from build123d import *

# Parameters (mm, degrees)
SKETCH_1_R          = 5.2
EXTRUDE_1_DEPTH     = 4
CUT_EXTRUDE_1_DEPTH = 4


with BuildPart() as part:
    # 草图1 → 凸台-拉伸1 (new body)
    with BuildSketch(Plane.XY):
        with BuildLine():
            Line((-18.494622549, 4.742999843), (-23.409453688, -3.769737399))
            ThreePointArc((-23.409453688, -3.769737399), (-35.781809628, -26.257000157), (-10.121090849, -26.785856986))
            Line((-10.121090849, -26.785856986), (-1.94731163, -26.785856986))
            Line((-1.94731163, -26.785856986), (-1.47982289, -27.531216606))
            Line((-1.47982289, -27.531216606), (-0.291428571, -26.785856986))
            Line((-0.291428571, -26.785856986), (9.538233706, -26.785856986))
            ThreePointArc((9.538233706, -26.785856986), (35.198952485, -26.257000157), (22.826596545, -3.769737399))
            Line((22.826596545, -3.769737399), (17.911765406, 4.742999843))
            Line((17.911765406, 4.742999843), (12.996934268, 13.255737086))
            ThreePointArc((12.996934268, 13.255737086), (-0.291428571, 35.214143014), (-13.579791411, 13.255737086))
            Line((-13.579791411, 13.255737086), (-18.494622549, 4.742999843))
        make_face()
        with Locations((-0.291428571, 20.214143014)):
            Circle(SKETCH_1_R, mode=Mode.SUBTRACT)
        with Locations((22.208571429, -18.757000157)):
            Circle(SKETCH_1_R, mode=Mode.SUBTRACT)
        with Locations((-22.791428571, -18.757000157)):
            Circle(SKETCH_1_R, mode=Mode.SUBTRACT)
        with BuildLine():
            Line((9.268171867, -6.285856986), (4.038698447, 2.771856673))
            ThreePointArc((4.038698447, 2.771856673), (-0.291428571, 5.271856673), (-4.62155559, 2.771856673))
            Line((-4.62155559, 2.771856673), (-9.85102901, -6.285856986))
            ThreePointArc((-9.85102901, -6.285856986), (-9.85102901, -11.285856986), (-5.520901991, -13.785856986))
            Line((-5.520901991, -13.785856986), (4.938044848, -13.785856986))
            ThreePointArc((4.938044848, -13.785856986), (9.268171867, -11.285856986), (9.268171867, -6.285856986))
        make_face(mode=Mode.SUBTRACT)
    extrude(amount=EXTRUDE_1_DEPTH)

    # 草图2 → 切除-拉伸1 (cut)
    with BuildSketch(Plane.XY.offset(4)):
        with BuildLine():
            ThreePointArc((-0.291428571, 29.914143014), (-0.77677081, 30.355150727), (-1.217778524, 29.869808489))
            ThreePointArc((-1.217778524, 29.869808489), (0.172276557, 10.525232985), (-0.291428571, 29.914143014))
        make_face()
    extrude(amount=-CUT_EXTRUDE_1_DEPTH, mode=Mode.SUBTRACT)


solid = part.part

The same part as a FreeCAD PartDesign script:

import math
import FreeCAD as App
import Part
import Sketcher

V = App.Vector
Q = App.Units.Quantity

doc = App.newDocument("Part")
body = doc.addObject("PartDesign::Body", "Body")

sketch1 = body.newObject("Sketcher::SketchObject", "Sketch")
sketch1.AttachmentSupport = (doc.getObject("XY_Plane"), [""])
sketch1.MapMode = "FlatFace"
sketch1.addGeometry(Part.LineSegment(V(-18.5, 4.7, 0), V(-23.4, -3.8, 0)), False)
sketch1.addGeometry(Part.ArcOfCircle(Part.Circle(V(-22.8, -18.8, 0), V(0, 0, 1), 15), math.radians(92), math.radians(328)), False)
sketch1.addGeometry(Part.LineSegment(V(-10.1, -26.8, 0), V(-1.9, -26.8, 0)), False)
sketch1.addGeometry(Part.LineSegment(V(-1.9, -26.8, 0), V(-1.5, -27.5, 0)), False)
sketch1.addGeometry(Part.LineSegment(V(-1.5, -27.5, 0), V(-0.3, -26.8, 0)), False)
sketch1.addGeometry(Part.LineSegment(V(-0.3, -26.8, 0), V(9.5, -26.8, 0)), False)
sketch1.addGeometry(Part.ArcOfCircle(Part.Circle(V(22.2, -18.8, 0), V(0, 0, 1), 15), math.radians(-148), math.radians(88)), False)
sketch1.addGeometry(Part.LineSegment(V(22.8, -3.8, 0), V(17.9, 4.7, 0)), False)
sketch1.addGeometry(Part.LineSegment(V(17.9, 4.7, 0), V(13, 13.3, 0)), False)
sketch1.addGeometry(Part.ArcOfCircle(Part.Circle(V(-0.3, 20.2, 0), V(0, 0, 1), 15), math.radians(-28), math.radians(208)), False)
sketch1.addGeometry(Part.LineSegment(V(-13.6, 13.3, 0), V(-18.5, 4.7, 0)), False)
sketch1.addGeometry(Part.Circle(V(-22.8, -18.8, 0), V(0, 0, 1), 5.2), False)
sketch1.addGeometry(Part.LineSegment(V(4, 2.8, 0), V(9.3, -6.3, 0)), False)
sketch1.addGeometry(Part.ArcOfCircle(Part.Circle(V(4.9, -8.8, 0), V(0, 0, 1), 5), math.radians(-90), math.radians(30)), False)
sketch1.addGeometry(Part.LineSegment(V(4.9, -13.8, 0), V(-5.5, -13.8, 0)), False)
sketch1.addGeometry(Part.ArcOfCircle(Part.Circle(V(-5.5, -8.8, 0), V(0, 0, 1), 5), math.radians(150), math.radians(270)), False)
sketch1.addGeometry(Part.LineSegment(V(-9.9, -6.3, 0), V(-4.6, 2.8, 0)), False)
sketch1.addGeometry(Part.ArcOfCircle(Part.Circle(V(-0.3, 0.3, 0), V(0, 0, 1), 5), math.radians(30), math.radians(150)), False)
sketch1.addGeometry(Part.Circle(V(22.2, -18.8, 0), V(0, 0, 1), 5.2), False)
sketch1.addGeometry(Part.Circle(V(-0.3, 20.2, 0), V(0, 0, 1), 5.2), False)
sketch1.addConstraint(Sketcher.Constraint("Coincident", 0, 2, 1, 1))
sketch1.addConstraint(Sketcher.Constraint("Coincident", 1, 2, 2, 1))
sketch1.addConstraint(Sketcher.Constraint("Coincident", 2, 2, 3, 1))
sketch1.addConstraint(Sketcher.Constraint("Coincident", 3, 2, 4, 1))
sketch1.addConstraint(Sketcher.Constraint("Coincident", 4, 2, 5, 1))
sketch1.addConstraint(Sketcher.Constraint("Coincident", 5, 2, 6, 1))
sketch1.addConstraint(Sketcher.Constraint("Coincident", 6, 2, 7, 1))
sketch1.addConstraint(Sketcher.Constraint("Coincident", 7, 2, 8, 1))
sketch1.addConstraint(Sketcher.Constraint("Coincident", 8, 2, 9, 1))
sketch1.addConstraint(Sketcher.Constraint("Coincident", 9, 2, 10, 1))
sketch1.addConstraint(Sketcher.Constraint("Coincident", 10, 2, 0, 1))
sketch1.addConstraint(Sketcher.Constraint("Tangent", 12, 2, 13, 2))
sketch1.addConstraint(Sketcher.Constraint("Tangent", 13, 1, 14, 1))
sketch1.addConstraint(Sketcher.Constraint("Tangent", 14, 2, 15, 2))
sketch1.addConstraint(Sketcher.Constraint("Tangent", 15, 1, 16, 1))
sketch1.addConstraint(Sketcher.Constraint("Tangent", 16, 2, 17, 2))
sketch1.addConstraint(Sketcher.Constraint("Tangent", 17, 1, 12, 1))
sketch1.addConstraint(Sketcher.Constraint("Horizontal", 2))
sketch1.addConstraint(Sketcher.Constraint("Horizontal", 5))
sketch1.addConstraint(Sketcher.Constraint("Horizontal", 14))
sketch1.addConstraint(Sketcher.Constraint("Coincident", 11, 3, 1, 3))
sketch1.addConstraint(Sketcher.Constraint("Coincident", 18, 3, 6, 3))
sketch1.addConstraint(Sketcher.Constraint("Coincident", 19, 3, 9, 3))
sketch1.addConstraint(Sketcher.Constraint("Equal", 1, 6))
sketch1.addConstraint(Sketcher.Constraint("Equal", 6, 9))
sketch1.addConstraint(Sketcher.Constraint("Equal", 13, 15))
sketch1.addConstraint(Sketcher.Constraint("Equal", 15, 17))
sketch1.addConstraint(Sketcher.Constraint("Equal", 11, 18))
sketch1.addConstraint(Sketcher.Constraint("Equal", 18, 19))
sketch1.addConstraint(Sketcher.Constraint("Perpendicular", 3, 4))
sketch1.addConstraint(Sketcher.Constraint("Parallel", 7, 8))
sketch1.addConstraint(Sketcher.Constraint("Parallel", 0, 10))
sketch1.addConstraint(Sketcher.Constraint("Parallel", 8, 12))
sketch1.addConstraint(Sketcher.Constraint("Parallel", 10, 16))
sketch1.addConstraint(Sketcher.Constraint("Horizontal", 1, 3, 6, 3))
sketch1.addConstraint(Sketcher.Constraint("Horizontal", 2, 2, 4, 2))
sketch1.addConstraint(Sketcher.Constraint("Horizontal", 0, 2, 6, 2))
sketch1.addConstraint(Sketcher.Constraint("Horizontal", 8, 2, 9, 2))
sketch1.addConstraint(Sketcher.Constraint("Horizontal", 7, 2, 10, 2))
sketch1.addConstraint(Sketcher.Constraint("Horizontal", 12, 2, 15, 1))
sketch1.addConstraint(Sketcher.Constraint("Vertical", 9, 3, 17, 3))
sketch1.addConstraint(Sketcher.Constraint("Vertical", 19, 3, 4, 2))
sketch1.addConstraint(Sketcher.Constraint("Equal", 7, 8))
sketch1.addConstraint(Sketcher.Constraint("Radius", 1, Q("15 mm")))
sketch1.addConstraint(Sketcher.Constraint("Radius", 13, Q("5 mm")))
sketch1.addConstraint(Sketcher.Constraint("Diameter", 11, Q("10.4 mm")))
sketch1.addConstraint(Sketcher.Constraint("Angle", 0, Q("-120 deg")))
sketch1.addConstraint(Sketcher.Constraint("DistanceX", 1, 3, 6, 3, Q("45 mm")))
sketch1.addConstraint(Sketcher.Constraint("DistanceY", 13, 3, 9, 3, Q("29 mm")))
sketch1.addConstraint(Sketcher.Constraint("DistanceY", 1, 2, 15, 3, Q("18 mm")))
sketch1.addConstraint(Sketcher.Constraint("DistanceY", 6, 3, 7, 2, Q("23.5 mm")))
sketch1.addConstraint(Sketcher.Constraint("DistanceY", 1, 3, -1, 1, Q("18.757 mm")))
sketch1.addConstraint(Sketcher.Constraint("DistanceX", 2, 1, 2, 2, Q("8.173779 mm")))
sketch1.addConstraint(Sketcher.Constraint("DistanceX", 15, 3, -1, 1, Q("5.520902 mm")))
sketch1.addConstraint(Sketcher.Constraint("DistanceX", -1, 1, 17, 1, Q("4.038698 mm")))
sketch1.addConstraint(Sketcher.Constraint("DistanceX", 0, 2, 13, 3, Q("28.347499 mm")))
sketch1.addConstraint(Sketcher.Constraint("DistanceX", 2, 2, 3, 2, Q("0.467489 mm")))
pad1 = body.newObject("PartDesign::Pad", "Pad")
pad1.Profile = sketch1
pad1.Length = 4

sketch2 = body.newObject("Sketcher::SketchObject", "Sketch001")
sketch2.AttachmentSupport = (doc.getObject("XY_Plane"), [""])
sketch2.MapMode = "FlatFace"
sketch2.AttachmentOffset = App.Placement(V(0, 0, 4), App.Rotation())
sketch2.addGeometry(Part.ArcOfCircle(Part.Circle(V(-0.75, 29.89, 0), V(0, 0, 1), 0.46), math.radians(3), math.radians(183)), False)
sketch2.addGeometry(Part.ArcOfCircle(Part.Circle(V(-0.29, 20.21, 0), V(0, 0, 1), 9.7), math.radians(95), math.radians(450)), False)
sketch2.addConstraint(Sketcher.Constraint("Coincident", 0, 1, 1, 2))
sketch2.addConstraint(Sketcher.Constraint("Coincident", 1, 1, 0, 2))
sketch2.addConstraint(Sketcher.Constraint("Vertical", 1, 3, 0, 1))
sketch2.addConstraint(Sketcher.Constraint("Radius", 1, Q("9.7 mm")))
sketch2.addConstraint(Sketcher.Constraint("Radius", 0, Q("0.463705 mm")))
sketch2.addConstraint(Sketcher.Constraint("DistanceX", 1, 3, -1, 1, Q("0.291429 mm")))
sketch2.addConstraint(Sketcher.Constraint("DistanceY", -1, 1, 1, 1, Q("29.869808 mm")))
sketch2.addConstraint(Sketcher.Constraint("DistanceX", 0, 3, -1, 1, Q("0.754604 mm")))
pocket1 = body.newObject("PartDesign::Pocket", "Pocket")
pocket1.Profile = sketch2
pocket1.Length = 4

doc.recompute()
